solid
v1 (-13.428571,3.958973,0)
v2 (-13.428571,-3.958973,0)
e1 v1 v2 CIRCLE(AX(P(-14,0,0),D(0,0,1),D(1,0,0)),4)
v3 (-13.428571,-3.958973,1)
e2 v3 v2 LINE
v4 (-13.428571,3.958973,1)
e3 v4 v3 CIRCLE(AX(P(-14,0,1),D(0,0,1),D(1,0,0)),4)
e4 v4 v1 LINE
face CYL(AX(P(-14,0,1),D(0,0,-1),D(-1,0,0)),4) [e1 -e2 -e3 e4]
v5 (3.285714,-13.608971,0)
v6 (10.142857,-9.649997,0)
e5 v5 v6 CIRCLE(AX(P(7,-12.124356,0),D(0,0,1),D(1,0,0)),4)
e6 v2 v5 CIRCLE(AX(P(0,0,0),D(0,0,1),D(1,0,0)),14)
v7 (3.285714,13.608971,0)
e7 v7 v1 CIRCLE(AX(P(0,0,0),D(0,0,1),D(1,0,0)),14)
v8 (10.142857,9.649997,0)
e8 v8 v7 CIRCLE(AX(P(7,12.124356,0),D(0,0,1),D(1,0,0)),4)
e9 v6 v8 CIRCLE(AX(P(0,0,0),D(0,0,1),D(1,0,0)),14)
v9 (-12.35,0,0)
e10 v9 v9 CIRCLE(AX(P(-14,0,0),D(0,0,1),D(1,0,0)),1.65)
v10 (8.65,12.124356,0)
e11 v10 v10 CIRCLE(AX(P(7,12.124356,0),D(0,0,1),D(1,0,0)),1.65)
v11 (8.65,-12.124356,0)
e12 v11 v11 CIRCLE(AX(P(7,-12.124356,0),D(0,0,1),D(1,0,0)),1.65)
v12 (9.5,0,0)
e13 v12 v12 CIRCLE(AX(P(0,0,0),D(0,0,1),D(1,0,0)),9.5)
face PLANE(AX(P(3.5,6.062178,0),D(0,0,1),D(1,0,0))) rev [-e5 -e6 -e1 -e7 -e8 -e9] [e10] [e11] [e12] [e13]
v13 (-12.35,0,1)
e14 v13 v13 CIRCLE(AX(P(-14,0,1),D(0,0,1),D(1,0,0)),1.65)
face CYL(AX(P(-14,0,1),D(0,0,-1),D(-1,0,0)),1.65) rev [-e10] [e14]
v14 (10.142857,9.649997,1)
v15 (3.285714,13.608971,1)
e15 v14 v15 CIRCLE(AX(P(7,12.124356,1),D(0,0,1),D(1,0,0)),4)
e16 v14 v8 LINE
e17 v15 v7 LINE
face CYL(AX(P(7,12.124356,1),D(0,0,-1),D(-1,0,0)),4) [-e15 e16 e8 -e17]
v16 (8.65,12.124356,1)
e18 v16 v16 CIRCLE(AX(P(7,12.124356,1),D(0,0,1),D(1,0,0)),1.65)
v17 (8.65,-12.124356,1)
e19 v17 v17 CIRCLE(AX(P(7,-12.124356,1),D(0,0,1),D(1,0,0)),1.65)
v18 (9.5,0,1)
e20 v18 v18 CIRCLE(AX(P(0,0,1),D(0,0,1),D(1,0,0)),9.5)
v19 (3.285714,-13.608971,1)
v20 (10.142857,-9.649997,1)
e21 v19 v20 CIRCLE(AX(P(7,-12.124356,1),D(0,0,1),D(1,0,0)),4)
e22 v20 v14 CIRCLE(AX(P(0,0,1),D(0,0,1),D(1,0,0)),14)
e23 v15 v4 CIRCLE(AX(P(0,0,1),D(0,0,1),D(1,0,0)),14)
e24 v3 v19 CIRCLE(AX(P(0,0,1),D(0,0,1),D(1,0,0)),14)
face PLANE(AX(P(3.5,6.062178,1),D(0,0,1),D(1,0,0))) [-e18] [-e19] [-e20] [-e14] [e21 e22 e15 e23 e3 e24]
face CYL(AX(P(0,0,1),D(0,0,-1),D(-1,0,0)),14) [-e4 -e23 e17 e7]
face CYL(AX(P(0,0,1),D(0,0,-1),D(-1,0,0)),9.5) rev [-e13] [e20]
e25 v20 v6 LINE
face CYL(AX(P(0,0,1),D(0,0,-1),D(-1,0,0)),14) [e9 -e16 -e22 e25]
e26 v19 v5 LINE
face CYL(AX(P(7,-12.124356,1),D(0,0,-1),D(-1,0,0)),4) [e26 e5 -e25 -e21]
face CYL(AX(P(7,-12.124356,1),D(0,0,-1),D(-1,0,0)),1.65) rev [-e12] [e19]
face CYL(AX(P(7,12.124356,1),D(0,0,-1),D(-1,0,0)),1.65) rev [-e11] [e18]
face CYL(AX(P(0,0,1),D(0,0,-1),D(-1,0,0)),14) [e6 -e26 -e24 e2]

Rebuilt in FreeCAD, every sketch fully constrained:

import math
import FreeCAD as App
import Part
import Sketcher
Q = App.Units.Quantity

doc = App.newDocument("Part")
body = doc.addObject("PartDesign::Body", "Body")

# Sketch on XY plane
sketch1 = body.newObject("Sketcher::SketchObject", "Sketch")
sketch1.AttachmentSupport = (doc.getObject("XY_Plane"), [""])
sketch1.MapMode = "FlatFace"
sketch1.addGeometry(Part.ArcOfCircle(Part.Circle(App.Vector(7, 12.1, 0), App.Vector(0, 0, 1), 4), math.radians(-38), math.radians(158)), False)
sketch1.addGeometry(Part.ArcOfCircle(Part.Circle(App.Vector(0, 0, 0), App.Vector(0, 0, 1), 14), math.radians(76), math.radians(164)), False)
sketch1.addGeometry(Part.ArcOfCircle(Part.Circle(App.Vector(-14, 0, 0), App.Vector(0, 0, 1), 4), math.radians(82), math.radians(278)), False)
sketch1.addGeometry(Part.ArcOfCircle(Part.Circle(App.Vector(0, 0, 0), App.Vector(0, 0, 1), 14), math.radians(-164), math.radians(-76)), False)
sketch1.addGeometry(Part.ArcOfCircle(Part.Circle(App.Vector(7, -12.1, 0), App.Vector(0, 0, 1), 4), math.radians(-158), math.radians(38)), False)
sketch1.addGeometry(Part.ArcOfCircle(Part.Circle(App.Vector(0, 0, 0), App.Vector(0, 0, 1), 14), math.radians(-44), math.radians(44)), False)
sketch1.addGeometry(Part.Circle(App.Vector(7, -12.1, 0), App.Vector(0, 0, 1), 1.6), False)
sketch1.addGeometry(Part.Circle(App.Vector(-14, 0, 0), App.Vector(0, 0, 1), 1.6), False)
sketch1.addGeometry(Part.Circle(App.Vector(0, 0, 0), App.Vector(0, 0, 1), 9.5), False)
sketch1.addGeometry(Part.Circle(App.Vector(7, 12.1, 0), App.Vector(0, 0, 1), 1.6), False)
sketch1.addConstraint(Sketcher.Constraint("Coincident", 0, 2, 1, 1))
sketch1.addConstraint(Sketcher.Constraint("Coincident", 1, 2, 2, 1))
sketch1.addConstraint(Sketcher.Constraint("Coincident", 2, 2, 3, 1))
sketch1.addConstraint(Sketcher.Constraint("Coincident", 3, 2, 4, 1))
sketch1.addConstraint(Sketcher.Constraint("Coincident", 4, 2, 5, 1))
sketch1.addConstraint(Sketcher.Constraint("Coincident", 5, 2, 0, 1))
sketch1.addConstraint(Sketcher.Constraint("Coincident", 1, 3, -1, 1))
sketch1.addConstraint(Sketcher.Constraint("Coincident", 3, 3, -1, 1))
sketch1.addConstraint(Sketcher.Constraint("Coincident", 5, 3, -1, 1))
sketch1.addConstraint(Sketcher.Constraint("Coincident", 8, 3, -1, 1))
sketch1.addConstraint(Sketcher.Constraint("Coincident", 6, 3, 4, 3))
sketch1.addConstraint(Sketcher.Constraint("Coincident", 7, 3, 2, 3))
sketch1.addConstraint(Sketcher.Constraint("Coincident", 9, 3, 0, 3))
sketch1.addConstraint(Sketcher.Constraint("Equal", 0, 2))
sketch1.addConstraint(Sketcher.Constraint("Equal", 1, 3))
sketch1.addConstraint(Sketcher.Constraint("Equal", 2, 4))
sketch1.addConstraint(Sketcher.Constraint("Equal", 3, 5))
sketch1.addConstraint(Sketcher.Constraint("Equal", 6, 7))
sketch1.addConstraint(Sketcher.Constraint("Equal", 7, 9))
sketch1.addConstraint(Sketcher.Constraint("Symmetric", 0, 3, 4, 3, -1))
sketch1.addConstraint(Sketcher.Constraint("PointOnObject", 2, 3, -1))
sketch1.addConstraint(Sketcher.Constraint("Diameter", 8, Q("19 mm")))
sketch1.addConstraint(Sketcher.Constraint("Radius", 0, Q("4 mm")))
sketch1.addConstraint(Sketcher.Constraint("Radius", 1, Q("14 mm")))
sketch1.addConstraint(Sketcher.Constraint("Diameter", 6, Q("3.3 mm")))
sketch1.addConstraint(Sketcher.Constraint("DistanceX", -1, 1, 0, 3, Q("7 mm")))
sketch1.addConstraint(Sketcher.Constraint("DistanceX", 2, 3, -1, 1, Q("14 mm")))
sketch1.addConstraint(Sketcher.Constraint("DistanceY", -1, 1, 0, 2, Q("13.608971 mm")))
pad1 = body.newObject("PartDesign::Pad", "Pad")
pad1.Profile = sketch1
pad1.Length = 1

doc.recompute()
